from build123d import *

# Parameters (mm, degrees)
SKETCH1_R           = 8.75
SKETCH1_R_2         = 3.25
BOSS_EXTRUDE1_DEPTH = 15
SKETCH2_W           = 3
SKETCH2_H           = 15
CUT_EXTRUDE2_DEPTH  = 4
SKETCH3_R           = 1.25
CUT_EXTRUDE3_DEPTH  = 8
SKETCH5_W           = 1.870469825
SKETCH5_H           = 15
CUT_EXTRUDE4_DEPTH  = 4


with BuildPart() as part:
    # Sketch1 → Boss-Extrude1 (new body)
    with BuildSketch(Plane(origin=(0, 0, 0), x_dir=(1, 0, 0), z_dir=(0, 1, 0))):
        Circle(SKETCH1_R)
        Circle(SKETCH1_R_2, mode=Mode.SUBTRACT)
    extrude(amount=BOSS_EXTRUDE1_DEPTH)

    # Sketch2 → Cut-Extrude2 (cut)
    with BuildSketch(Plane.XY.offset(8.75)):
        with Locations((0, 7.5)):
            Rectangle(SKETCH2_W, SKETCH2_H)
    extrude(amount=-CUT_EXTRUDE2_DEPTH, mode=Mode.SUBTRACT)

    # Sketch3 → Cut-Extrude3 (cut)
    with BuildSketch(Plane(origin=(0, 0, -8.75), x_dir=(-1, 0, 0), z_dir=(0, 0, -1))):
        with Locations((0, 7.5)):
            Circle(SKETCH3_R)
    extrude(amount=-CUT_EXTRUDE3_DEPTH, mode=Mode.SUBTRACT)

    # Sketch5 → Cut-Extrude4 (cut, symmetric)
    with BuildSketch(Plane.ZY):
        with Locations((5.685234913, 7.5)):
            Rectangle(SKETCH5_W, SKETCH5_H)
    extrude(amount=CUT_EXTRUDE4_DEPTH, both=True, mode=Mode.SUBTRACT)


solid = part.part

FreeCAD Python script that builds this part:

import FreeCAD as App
import Part
import Sketcher

doc = App.newDocument("Part")
params = doc.addObject("Spreadsheet::Sheet", "Params")
for row, (alias, value) in enumerate([
    ("sketch1_diameter", "17.5 mm"),
    ("sketch1_diameter2", "6.5 mm"),
    ("pad1_length", "15 mm"),
    ("sketch2_width", "3 mm"),
    ("sketch2_height", "15 mm"),
    ("pocket1_length", "4 mm"),
    ("sketch3_diameter", "2.5 mm"),
    ("pocket2_length", "8 mm"),
    ("sketch4_width", "15 mm"),
    ("pocket3_length", "8 mm"),
], start=1):
    params.set(f"A{row}", alias)
    params.set(f"B{row}", "=" + value)
    params.setAlias(f"B{row}", alias)

body = doc.addObject("PartDesign::Body", "Body")

sketch1 = body.newObject("Sketcher::SketchObject", "Sketch")
sketch1.AttachmentSupport = (doc.getObject("XZ_Plane"), [""])
sketch1.MapMode = "FlatFace"
sketch1.addGeometry([
    Part.Circle(App.Vector(0, 0, 0), App.Vector(0, 0, 1), 8.8),
    Part.Circle(App.Vector(0, 0, 0), App.Vector(0, 0, 1), 3.2),
], False)
sketch1.addConstraint([
    Sketcher.Constraint("Coincident", 0, 3, -1, 1),
    Sketcher.Constraint("Coincident", 1, 3, -1, 1),
    Sketcher.Constraint("Diameter", 0, 17.5),
    Sketcher.Constraint("Diameter", 1, 6.5),
])
sketch1.setExpression("Constraints[2]", "Params.sketch1_diameter")
sketch1.setExpression("Constraints[3]", "Params.sketch1_diameter2")
pad1 = body.newObject("PartDesign::Pad", "Pad")
pad1.Profile = sketch1
pad1.setExpression("Length", "Params.pad1_length")
pad1.Reversed = True

sketch2 = body.newObject("Sketcher::SketchObject", "Sketch001")
sketch2.AttachmentSupport = (doc.getObject("XY_Plane"), [""])
sketch2.MapMode = "FlatFace"
sketch2.AttachmentOffset = App.Placement(App.Vector(0, 0, 8.75), App.Rotation())
sketch2.addGeometry([
    Part.LineSegment(App.Vector(-1.5, 15, 0), App.Vector(-1.5, 0, 0)),
    Part.LineSegment(App.Vector(-1.5, 0, 0), App.Vector(1.5, 0, 0)),
    Part.LineSegment(App.Vector(1.5, 0, 0), App.Vector(1.5, 15, 0)),
    Part.LineSegment(App.Vector(1.5, 15, 0), App.Vector(-1.5, 15, 0)),
], False)
sketch2.addConstraint([
    Sketcher.Constraint("Coincident", 0, 2, 1, 1),
    Sketcher.Constraint("Coincident", 1, 2, 2, 1),
    Sketcher.Constraint("Coincident", 2, 2, 3, 1),
    Sketcher.Constraint("Coincident", 3, 2, 0, 1),
    Sketcher.Constraint("Vertical", 0),
    Sketcher.Constraint("Horizontal", 1),
    Sketcher.Constraint("Vertical", 2),
    Sketcher.Constraint("Horizontal", 3),
    Sketcher.Constraint("Symmetric", 0, 2, 1, 2, -1, 1),
    Sketcher.Constraint("DistanceX", 1, 1, 1, 2, 3.0),
    Sketcher.Constraint("DistanceY", 0, 2, 0, 1, 15.0),
])
sketch2.setExpression("Constraints[9]", "Params.sketch2_width")
sketch2.setExpression("Constraints[10]", "Params.sketch2_height")
pocket1 = body.newObject("PartDesign::Pocket", "Pocket")
pocket1.Profile = sketch2
pocket1.setExpression("Length", "Params.pocket1_length")

sketch3 = body.newObject("Sketcher::SketchObject", "Sketch002")
sketch3.AttachmentSupport = (doc.getObject("XY_Plane"), [""])
sketch3.MapMode = "FlatFace"
sketch3.AttachmentOffset = App.Placement(App.Vector(0, 0, -8.75), App.Rotation())
sketch3.addGeometry(Part.Circle(App.Vector(0, 7.5, 0), App.Vector(0, 0, 1), 1.2), False)
sketch3.addConstraint([
    Sketcher.Constraint("PointOnObject", 0, 3, -2),
    Sketcher.Constraint("Diameter", 0, 2.5),
    Sketcher.Constraint("DistanceY", -1, 1, 0, 3, 7.5),
])
sketch3.setExpression("Constraints[1]", "Params.sketch3_diameter")
pocket2 = body.newObject("PartDesign::Pocket", "Pocket001")
pocket2.Profile = sketch3
pocket2.setExpression("Length", "Params.pocket2_length")
pocket2.Reversed = True

sketch4 = body.newObject("Sketcher::SketchObject", "Sketch003")
sketch4.AttachmentSupport = (doc.getObject("YZ_Plane"), [""])
sketch4.MapMode = "FlatFace"
sketch4.addGeometry([
    Part.LineSegment(App.Vector(15, 4.8, 0), App.Vector(0, 4.8, 0)),
    Part.LineSegment(App.Vector(0, 4.8, 0), App.Vector(0, 6.6, 0)),
    Part.LineSegment(App.Vector(0, 6.6, 0), App.Vector(15, 6.6, 0)),
    Part.LineSegment(App.Vector(15, 6.6, 0), App.Vector(15, 4.8, 0)),
], False)
sketch4.addConstraint([
    Sketcher.Constraint("Coincident", 0, 2, 1, 1),
    Sketcher.Constraint("Coincident", 1, 2, 2, 1),
    Sketcher.Constraint("Coincident", 2, 2, 3, 1),
    Sketcher.Constraint("Coincident", 3, 2, 0, 1),
    Sketcher.Constraint("Horizontal", 0),
    Sketcher.Constraint("Vertical", 1),
    Sketcher.Constraint("Horizontal", 2),
    Sketcher.Constraint("Vertical", 3),
    Sketcher.Constraint("PointOnObject", 0, 2, -2),
    Sketcher.Constraint("DistanceX", 0, 2, 0, 1, 15.0),
    Sketcher.Constraint("DistanceY", -1, 1, 0, 2, 4.75),
    Sketcher.Constraint("DistanceY", 1, 1, 1, 2, 1.87047),
])
sketch4.setExpression("Constraints[9]", "Params.sketch4_width")
pocket3 = body.newObject("PartDesign::Pocket", "Pocket002")
pocket3.Profile = sketch4
pocket3.setExpression("Length", "Params.pocket3_length")
pocket3.Midplane = True

doc.recompute()
